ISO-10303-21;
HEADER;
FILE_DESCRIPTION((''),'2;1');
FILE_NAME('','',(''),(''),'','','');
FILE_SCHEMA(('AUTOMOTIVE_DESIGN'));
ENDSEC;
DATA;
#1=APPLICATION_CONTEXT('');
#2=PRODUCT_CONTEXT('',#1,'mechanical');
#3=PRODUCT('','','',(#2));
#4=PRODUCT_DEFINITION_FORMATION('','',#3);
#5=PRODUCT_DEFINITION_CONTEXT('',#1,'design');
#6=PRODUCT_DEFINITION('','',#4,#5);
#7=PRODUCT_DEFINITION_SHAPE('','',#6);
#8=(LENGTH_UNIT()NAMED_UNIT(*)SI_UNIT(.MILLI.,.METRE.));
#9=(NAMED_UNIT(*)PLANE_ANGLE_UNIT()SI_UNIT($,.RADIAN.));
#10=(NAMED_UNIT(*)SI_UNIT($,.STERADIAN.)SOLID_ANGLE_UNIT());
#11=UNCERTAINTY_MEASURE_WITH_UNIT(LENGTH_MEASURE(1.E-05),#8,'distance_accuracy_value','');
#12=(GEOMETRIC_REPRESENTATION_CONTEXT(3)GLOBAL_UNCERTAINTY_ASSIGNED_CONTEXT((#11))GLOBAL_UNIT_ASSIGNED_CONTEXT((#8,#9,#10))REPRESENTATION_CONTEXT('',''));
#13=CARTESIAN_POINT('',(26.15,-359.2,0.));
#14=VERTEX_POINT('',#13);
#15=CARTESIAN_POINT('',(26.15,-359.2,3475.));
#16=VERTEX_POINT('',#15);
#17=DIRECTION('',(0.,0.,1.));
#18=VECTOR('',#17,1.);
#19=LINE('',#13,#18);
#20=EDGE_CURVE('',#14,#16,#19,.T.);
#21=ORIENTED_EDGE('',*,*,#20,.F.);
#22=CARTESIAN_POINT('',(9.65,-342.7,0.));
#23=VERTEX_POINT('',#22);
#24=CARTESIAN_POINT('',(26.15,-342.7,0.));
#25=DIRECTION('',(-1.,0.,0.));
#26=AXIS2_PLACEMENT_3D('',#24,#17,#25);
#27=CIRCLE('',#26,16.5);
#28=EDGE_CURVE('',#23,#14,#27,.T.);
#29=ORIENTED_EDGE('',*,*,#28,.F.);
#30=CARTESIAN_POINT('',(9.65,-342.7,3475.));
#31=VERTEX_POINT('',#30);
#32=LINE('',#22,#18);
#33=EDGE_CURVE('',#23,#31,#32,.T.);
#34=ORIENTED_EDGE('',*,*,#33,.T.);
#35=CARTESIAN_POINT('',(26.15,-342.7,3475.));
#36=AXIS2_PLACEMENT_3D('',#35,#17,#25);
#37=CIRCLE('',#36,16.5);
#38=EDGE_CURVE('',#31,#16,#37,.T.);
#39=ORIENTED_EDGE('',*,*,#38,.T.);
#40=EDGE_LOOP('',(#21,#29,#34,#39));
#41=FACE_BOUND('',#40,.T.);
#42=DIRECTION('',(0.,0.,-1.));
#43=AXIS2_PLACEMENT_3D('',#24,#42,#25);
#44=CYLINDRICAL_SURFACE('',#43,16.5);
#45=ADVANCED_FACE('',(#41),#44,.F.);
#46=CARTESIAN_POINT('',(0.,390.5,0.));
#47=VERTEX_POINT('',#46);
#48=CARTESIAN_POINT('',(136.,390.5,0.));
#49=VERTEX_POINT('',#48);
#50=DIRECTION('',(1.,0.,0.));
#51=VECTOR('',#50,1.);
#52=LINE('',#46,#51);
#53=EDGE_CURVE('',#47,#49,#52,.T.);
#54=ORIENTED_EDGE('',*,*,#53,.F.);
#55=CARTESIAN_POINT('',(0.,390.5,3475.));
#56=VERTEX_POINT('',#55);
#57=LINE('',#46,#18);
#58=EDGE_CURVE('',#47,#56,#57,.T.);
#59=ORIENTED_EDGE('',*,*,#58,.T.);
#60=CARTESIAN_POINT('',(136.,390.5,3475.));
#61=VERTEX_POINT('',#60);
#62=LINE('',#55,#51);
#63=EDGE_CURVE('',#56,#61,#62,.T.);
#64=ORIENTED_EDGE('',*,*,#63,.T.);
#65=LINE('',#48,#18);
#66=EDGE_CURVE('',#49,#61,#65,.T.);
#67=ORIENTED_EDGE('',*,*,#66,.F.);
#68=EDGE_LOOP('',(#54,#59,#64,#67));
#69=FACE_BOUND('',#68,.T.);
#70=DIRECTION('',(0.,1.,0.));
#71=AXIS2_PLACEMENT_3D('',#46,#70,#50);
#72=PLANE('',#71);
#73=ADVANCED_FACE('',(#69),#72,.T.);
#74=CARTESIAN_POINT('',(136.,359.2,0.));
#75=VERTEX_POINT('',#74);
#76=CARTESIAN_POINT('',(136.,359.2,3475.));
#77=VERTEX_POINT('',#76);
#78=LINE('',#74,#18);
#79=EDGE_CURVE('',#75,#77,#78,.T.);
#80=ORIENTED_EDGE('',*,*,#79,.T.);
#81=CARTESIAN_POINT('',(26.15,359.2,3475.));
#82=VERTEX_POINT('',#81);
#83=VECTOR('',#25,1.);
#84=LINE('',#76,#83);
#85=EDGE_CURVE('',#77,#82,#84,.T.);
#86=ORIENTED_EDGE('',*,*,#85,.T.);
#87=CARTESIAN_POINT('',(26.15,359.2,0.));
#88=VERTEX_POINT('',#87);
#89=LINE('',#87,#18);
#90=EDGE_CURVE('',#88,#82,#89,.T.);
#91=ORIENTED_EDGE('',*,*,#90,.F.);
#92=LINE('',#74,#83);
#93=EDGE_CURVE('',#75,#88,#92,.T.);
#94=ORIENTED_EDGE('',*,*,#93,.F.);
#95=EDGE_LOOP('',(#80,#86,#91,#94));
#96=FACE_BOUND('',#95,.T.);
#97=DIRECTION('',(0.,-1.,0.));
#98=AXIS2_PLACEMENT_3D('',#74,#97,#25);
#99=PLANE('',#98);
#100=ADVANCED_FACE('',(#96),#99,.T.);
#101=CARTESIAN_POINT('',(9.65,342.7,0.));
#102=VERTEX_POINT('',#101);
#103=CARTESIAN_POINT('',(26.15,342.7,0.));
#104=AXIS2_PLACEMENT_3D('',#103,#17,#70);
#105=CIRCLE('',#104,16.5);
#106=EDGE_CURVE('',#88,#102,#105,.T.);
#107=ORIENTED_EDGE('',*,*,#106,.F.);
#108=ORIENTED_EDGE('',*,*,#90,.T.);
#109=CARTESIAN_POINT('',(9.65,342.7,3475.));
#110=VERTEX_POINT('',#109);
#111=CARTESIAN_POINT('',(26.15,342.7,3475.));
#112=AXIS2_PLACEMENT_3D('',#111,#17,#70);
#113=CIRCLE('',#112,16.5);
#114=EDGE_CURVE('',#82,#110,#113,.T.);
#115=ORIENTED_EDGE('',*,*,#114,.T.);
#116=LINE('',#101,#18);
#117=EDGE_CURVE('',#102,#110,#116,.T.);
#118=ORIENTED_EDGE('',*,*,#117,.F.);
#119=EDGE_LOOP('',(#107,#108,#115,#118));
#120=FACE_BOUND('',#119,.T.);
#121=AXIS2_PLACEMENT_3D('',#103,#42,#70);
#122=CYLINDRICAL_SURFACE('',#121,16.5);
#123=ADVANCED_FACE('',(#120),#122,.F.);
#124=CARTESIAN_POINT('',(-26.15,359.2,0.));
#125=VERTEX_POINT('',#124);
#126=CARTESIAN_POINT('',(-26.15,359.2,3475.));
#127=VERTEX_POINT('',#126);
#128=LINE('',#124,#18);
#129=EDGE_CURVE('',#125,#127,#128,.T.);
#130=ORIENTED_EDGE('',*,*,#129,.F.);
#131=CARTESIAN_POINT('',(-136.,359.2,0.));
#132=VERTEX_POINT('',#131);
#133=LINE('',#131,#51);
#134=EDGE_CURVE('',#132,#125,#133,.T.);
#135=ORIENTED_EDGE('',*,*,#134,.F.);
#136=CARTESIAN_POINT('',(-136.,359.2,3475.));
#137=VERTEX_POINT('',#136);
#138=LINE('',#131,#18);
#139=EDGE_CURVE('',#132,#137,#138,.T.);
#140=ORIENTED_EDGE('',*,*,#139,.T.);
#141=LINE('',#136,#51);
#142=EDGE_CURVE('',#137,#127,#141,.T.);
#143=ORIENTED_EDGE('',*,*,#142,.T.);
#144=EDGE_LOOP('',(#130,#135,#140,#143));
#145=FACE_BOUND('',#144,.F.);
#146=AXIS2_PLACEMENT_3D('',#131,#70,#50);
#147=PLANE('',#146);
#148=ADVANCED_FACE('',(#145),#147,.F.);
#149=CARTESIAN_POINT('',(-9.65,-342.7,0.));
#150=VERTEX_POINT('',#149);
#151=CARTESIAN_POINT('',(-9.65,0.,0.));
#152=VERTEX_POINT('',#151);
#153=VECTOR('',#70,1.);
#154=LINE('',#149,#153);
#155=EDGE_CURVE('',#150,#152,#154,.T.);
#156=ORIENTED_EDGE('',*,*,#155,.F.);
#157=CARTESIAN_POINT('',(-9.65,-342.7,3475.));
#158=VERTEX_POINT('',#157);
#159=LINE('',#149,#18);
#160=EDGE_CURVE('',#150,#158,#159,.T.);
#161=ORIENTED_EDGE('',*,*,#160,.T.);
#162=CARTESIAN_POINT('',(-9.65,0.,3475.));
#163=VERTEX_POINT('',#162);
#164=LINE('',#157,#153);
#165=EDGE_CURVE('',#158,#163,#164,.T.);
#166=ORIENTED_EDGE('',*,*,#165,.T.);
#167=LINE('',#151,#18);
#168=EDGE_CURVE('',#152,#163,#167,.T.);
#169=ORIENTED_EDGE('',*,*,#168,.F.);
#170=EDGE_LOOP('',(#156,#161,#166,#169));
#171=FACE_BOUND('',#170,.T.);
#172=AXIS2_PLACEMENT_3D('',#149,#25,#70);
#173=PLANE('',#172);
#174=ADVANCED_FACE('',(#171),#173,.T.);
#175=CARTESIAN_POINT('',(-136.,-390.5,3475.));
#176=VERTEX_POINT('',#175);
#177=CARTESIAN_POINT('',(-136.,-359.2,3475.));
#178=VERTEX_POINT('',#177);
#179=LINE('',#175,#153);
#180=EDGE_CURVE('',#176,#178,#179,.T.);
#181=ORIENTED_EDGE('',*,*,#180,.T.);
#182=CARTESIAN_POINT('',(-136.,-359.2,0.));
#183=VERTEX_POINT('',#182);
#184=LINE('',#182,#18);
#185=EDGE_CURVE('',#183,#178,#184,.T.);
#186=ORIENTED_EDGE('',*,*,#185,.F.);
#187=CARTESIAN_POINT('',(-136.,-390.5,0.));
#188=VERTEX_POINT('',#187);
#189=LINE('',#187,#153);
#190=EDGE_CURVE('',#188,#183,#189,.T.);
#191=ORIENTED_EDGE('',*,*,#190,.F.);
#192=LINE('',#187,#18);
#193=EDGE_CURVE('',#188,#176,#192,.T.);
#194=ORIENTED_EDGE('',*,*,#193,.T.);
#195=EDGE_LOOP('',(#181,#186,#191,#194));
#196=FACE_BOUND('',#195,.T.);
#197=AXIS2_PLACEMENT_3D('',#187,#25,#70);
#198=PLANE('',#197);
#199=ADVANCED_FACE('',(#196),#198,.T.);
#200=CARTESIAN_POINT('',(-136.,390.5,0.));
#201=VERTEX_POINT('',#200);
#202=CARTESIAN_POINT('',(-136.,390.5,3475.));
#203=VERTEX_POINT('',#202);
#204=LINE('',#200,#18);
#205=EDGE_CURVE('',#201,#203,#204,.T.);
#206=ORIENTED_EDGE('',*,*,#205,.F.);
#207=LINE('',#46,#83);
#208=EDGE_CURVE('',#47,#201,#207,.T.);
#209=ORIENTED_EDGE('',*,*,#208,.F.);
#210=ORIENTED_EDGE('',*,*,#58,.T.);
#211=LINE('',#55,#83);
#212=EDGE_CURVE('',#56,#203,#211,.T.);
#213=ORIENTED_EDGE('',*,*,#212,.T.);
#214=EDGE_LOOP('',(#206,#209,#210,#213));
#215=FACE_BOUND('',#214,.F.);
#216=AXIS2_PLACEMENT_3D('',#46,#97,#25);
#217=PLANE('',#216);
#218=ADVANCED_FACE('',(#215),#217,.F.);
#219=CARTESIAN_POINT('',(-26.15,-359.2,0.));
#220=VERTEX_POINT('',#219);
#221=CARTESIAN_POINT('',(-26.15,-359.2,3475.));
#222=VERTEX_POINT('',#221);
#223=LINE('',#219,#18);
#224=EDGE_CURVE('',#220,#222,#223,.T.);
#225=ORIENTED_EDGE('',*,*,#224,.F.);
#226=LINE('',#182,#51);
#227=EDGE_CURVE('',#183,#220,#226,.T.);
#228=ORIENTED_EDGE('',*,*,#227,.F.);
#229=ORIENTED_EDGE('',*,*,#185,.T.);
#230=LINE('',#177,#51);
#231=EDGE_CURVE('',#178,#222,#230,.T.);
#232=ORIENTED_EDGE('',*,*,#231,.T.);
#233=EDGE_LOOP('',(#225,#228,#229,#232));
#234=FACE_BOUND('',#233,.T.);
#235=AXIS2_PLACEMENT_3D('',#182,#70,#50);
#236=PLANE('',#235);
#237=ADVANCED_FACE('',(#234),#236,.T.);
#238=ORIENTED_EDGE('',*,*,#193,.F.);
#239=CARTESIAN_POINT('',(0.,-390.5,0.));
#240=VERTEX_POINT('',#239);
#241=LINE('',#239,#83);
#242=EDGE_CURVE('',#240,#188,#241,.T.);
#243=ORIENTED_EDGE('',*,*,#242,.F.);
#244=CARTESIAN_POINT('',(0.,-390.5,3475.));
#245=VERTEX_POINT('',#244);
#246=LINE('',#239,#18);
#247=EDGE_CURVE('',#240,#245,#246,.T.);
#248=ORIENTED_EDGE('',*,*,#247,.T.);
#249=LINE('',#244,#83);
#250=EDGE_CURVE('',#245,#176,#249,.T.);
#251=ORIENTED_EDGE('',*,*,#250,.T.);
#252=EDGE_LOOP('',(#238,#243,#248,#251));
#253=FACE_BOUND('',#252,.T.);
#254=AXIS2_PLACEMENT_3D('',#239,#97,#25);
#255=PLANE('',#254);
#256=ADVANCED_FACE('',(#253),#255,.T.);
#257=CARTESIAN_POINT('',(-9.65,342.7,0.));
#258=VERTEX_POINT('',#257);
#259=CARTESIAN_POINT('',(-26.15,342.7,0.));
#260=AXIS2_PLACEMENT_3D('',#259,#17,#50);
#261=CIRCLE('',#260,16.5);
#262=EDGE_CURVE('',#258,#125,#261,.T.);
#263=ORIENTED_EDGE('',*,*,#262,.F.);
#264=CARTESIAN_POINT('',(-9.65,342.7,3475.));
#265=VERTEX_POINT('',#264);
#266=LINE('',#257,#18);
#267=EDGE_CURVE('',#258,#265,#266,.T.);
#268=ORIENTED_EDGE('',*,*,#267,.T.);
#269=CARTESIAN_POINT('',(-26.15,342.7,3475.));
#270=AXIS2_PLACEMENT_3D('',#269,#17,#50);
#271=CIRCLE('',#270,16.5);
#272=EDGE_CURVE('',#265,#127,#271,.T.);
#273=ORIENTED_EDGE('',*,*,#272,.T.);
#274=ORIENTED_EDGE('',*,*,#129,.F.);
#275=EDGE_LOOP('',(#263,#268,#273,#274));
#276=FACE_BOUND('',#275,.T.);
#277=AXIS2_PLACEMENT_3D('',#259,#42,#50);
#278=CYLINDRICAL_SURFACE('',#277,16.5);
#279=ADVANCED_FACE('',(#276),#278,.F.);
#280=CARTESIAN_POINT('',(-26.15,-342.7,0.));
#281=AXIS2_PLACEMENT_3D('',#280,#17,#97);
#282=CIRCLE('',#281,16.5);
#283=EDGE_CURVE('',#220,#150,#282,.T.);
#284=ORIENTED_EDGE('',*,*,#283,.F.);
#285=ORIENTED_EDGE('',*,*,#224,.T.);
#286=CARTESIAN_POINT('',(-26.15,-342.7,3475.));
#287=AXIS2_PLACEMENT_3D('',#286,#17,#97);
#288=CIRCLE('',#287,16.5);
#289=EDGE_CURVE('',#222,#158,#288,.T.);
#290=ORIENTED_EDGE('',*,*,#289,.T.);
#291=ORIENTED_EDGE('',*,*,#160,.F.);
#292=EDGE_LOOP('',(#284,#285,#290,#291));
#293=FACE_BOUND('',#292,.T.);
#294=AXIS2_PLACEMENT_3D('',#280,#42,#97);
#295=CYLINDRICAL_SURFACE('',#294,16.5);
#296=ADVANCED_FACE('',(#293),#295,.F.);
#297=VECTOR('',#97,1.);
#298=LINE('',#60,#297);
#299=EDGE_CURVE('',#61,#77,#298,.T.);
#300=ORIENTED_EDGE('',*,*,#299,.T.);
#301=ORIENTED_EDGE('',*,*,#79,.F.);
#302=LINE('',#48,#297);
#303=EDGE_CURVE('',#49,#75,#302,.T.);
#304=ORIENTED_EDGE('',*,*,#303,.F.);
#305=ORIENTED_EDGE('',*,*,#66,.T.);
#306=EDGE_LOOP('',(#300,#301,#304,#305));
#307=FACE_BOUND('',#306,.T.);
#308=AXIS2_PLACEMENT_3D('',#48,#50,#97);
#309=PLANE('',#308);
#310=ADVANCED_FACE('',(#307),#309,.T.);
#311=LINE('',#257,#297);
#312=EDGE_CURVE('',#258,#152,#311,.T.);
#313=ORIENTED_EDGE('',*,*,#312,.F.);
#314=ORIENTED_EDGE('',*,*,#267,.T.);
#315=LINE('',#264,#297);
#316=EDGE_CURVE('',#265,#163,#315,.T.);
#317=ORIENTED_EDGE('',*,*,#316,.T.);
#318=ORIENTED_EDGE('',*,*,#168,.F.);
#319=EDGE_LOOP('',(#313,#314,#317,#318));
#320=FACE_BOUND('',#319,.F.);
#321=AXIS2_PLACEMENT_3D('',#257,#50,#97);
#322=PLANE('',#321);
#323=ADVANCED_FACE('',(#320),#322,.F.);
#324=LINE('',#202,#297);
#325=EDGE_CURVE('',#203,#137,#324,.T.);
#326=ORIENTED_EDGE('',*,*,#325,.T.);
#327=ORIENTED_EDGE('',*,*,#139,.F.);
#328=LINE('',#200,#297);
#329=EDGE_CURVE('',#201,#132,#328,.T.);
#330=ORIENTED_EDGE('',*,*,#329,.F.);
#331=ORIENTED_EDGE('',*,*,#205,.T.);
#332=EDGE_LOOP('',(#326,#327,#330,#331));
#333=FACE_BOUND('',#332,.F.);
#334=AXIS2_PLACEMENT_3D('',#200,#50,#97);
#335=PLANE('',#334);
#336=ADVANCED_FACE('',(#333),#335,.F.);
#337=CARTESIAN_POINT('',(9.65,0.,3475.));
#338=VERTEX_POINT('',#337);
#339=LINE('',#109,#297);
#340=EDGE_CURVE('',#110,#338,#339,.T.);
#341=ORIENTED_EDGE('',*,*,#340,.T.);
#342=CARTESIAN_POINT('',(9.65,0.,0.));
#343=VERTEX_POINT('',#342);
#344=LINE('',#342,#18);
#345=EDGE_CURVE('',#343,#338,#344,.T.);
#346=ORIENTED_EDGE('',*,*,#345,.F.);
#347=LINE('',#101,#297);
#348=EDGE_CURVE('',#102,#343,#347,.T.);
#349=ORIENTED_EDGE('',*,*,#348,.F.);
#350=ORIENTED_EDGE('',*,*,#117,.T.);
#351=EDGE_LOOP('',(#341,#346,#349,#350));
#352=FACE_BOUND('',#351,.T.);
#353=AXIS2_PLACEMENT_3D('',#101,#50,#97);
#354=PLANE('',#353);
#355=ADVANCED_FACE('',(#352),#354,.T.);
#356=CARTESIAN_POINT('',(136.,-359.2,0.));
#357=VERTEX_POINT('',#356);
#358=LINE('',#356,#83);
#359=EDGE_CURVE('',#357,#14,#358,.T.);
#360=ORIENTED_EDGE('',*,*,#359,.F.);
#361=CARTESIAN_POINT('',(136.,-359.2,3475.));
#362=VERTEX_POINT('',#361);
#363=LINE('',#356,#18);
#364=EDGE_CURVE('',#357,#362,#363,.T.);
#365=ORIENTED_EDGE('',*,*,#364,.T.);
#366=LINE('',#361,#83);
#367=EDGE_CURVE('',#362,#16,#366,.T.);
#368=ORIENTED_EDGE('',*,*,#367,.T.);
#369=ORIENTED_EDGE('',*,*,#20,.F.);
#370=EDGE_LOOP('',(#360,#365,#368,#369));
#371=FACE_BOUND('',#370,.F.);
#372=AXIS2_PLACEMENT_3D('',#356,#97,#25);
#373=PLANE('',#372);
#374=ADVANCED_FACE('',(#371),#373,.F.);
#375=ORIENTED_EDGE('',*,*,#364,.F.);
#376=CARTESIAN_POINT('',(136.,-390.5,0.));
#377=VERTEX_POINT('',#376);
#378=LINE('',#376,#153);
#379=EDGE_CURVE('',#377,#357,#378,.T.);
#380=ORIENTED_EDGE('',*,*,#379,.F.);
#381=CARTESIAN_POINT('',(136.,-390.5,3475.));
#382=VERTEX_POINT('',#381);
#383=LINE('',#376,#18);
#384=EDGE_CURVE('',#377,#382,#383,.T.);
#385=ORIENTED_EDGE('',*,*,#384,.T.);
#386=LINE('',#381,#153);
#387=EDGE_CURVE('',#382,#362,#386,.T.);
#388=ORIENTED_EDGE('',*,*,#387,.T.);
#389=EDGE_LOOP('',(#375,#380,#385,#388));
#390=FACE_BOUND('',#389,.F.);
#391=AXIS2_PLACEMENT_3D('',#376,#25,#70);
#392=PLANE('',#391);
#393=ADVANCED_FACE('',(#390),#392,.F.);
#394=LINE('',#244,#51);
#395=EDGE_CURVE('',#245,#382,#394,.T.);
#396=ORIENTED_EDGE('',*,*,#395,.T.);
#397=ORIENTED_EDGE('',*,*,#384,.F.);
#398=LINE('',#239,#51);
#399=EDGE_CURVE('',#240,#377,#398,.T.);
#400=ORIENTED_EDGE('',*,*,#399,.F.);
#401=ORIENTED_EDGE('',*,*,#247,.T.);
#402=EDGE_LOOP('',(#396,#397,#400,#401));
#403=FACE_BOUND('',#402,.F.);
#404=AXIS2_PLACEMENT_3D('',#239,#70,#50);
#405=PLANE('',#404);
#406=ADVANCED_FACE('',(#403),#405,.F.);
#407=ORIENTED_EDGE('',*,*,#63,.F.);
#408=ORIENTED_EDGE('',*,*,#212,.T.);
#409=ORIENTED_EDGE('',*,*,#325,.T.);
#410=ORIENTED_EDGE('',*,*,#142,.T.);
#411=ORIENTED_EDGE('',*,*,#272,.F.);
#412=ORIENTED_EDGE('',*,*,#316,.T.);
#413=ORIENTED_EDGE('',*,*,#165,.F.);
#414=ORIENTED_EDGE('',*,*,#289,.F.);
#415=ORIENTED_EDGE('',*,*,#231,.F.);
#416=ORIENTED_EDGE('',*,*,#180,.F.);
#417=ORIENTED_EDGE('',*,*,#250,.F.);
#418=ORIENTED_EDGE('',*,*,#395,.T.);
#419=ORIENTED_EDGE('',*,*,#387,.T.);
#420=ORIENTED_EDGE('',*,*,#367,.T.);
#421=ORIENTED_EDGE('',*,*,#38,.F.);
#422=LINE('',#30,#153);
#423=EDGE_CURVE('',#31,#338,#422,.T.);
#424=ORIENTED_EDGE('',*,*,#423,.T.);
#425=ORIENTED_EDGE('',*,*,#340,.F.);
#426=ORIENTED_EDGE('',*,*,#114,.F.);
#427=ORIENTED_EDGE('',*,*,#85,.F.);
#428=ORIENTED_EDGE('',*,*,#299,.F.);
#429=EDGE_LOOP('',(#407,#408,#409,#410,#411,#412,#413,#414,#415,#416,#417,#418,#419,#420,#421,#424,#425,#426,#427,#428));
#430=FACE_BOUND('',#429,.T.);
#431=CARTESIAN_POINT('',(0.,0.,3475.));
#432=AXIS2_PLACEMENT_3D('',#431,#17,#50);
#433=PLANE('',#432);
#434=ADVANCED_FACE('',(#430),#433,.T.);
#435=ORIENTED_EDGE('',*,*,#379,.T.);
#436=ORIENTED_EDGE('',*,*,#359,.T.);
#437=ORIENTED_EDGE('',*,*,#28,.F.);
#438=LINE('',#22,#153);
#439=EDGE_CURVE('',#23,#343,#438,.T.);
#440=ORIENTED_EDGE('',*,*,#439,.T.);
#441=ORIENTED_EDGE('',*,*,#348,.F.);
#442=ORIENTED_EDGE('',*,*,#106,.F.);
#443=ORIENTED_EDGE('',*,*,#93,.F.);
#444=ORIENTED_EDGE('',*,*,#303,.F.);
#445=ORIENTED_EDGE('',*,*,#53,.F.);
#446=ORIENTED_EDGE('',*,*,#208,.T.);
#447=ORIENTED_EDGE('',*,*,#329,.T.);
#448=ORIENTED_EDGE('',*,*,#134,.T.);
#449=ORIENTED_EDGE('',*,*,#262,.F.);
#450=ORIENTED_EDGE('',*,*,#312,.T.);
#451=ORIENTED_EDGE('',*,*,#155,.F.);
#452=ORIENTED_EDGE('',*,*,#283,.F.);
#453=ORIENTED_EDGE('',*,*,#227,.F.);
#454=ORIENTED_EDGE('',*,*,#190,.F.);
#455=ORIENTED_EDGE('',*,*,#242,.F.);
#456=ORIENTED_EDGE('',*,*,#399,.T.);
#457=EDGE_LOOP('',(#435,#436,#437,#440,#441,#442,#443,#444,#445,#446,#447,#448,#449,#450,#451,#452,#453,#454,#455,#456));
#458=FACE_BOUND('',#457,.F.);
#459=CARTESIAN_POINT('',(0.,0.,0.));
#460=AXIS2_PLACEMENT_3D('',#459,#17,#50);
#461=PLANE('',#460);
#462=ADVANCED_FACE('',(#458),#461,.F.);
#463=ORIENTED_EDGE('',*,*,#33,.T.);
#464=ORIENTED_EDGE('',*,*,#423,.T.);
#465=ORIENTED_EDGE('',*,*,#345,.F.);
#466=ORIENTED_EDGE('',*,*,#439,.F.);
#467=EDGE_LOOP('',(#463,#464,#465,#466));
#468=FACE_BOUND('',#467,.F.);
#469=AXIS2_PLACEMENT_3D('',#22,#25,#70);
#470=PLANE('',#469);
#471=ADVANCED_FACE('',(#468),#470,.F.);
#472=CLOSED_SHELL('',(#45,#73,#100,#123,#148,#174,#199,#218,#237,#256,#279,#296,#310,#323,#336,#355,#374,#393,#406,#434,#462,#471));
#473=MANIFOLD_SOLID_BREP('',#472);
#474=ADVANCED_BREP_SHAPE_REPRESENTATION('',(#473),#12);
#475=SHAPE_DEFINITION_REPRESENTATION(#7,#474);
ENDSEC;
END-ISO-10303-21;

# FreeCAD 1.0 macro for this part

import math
import FreeCAD as App
import Part
import Sketcher
Q = App.Units.Quantity

doc = App.newDocument("Part")
body = doc.addObject("PartDesign::Body", "Body")

sketch1 = body.newObject("Sketcher::SketchObject", "Sketch")
sketch1.AttachmentSupport = (doc.getObject("XY_Plane"), [""])
sketch1.MapMode = "FlatFace"
sketch1.addGeometry([
    Part.LineSegment(App.Vector(-136, -359, 0), App.Vector(-136, -390, 0)),
    Part.LineSegment(App.Vector(-136, -390, 0), App.Vector(136, -390, 0)),
    Part.LineSegment(App.Vector(136, -390, 0), App.Vector(136, -359, 0)),
    Part.LineSegment(App.Vector(136, -359, 0), App.Vector(26, -359, 0)),
    Part.ArcOfCircle(Part.Circle(App.Vector(26, -343, 0), App.Vector(0, 0, 1), 16), math.radians(180), math.radians(270)),
    Part.LineSegment(App.Vector(10, -343, 0), App.Vector(10, 343, 0)),
    Part.ArcOfCircle(Part.Circle(App.Vector(26, 343, 0), App.Vector(0, 0, 1), 16), math.radians(90), math.radians(180)),
    Part.LineSegment(App.Vector(26, 359, 0), App.Vector(136, 359, 0)),
    Part.LineSegment(App.Vector(136, 359, 0), App.Vector(136, 390, 0)),
    Part.LineSegment(App.Vector(136, 390, 0), App.Vector(-136, 390, 0)),
    Part.LineSegment(App.Vector(-136, 390, 0), App.Vector(-136, 359, 0)),
    Part.LineSegment(App.Vector(-136, 359, 0), App.Vector(-26, 359, 0)),
    Part.ArcOfCircle(Part.Circle(App.Vector(-26, 343, 0), App.Vector(0, 0, 1), 16), math.radians(0), math.radians(90)),
    Part.LineSegment(App.Vector(-10, 343, 0), App.Vector(-10, -343, 0)),
    Part.ArcOfCircle(Part.Circle(App.Vector(-26, -343, 0), App.Vector(0, 0, 1), 16), math.radians(-90), math.radians(0)),
    Part.LineSegment(App.Vector(-26, -359, 0), App.Vector(-136, -359, 0)),
], False)
sketch1.addConstraint([
    Sketcher.Constraint("Coincident", 0, 2, 1, 1),
    Sketcher.Constraint("Coincident", 1, 2, 2, 1),
    Sketcher.Constraint("Coincident", 2, 2, 3, 1),
    Sketcher.Constraint("Tangent", 3, 2, 4, 2),
    Sketcher.Constraint("Tangent", 4, 1, 5, 1),
    Sketcher.Constraint("Tangent", 5, 2, 6, 2),
    Sketcher.Constraint("Tangent", 6, 1, 7, 1),
    Sketcher.Constraint("Coincident", 7, 2, 8, 1),
    Sketcher.Constraint("Coincident", 8, 2, 9, 1),
    Sketcher.Constraint("Coincident", 9, 2, 10, 1),
    Sketcher.Constraint("Coincident", 10, 2, 11, 1),
    Sketcher.Constraint("Tangent", 11, 2, 12, 2),
    Sketcher.Constraint("Tangent", 12, 1, 13, 1),
    Sketcher.Constraint("Tangent", 13, 2, 14, 2),
    Sketcher.Constraint("Tangent", 14, 1, 15, 1),
    Sketcher.Constraint("Coincident", 15, 2, 0, 1),
    Sketcher.Constraint("Vertical", 0),
    Sketcher.Constraint("Horizontal", 1),
    Sketcher.Constraint("Vertical", 2),
    Sketcher.Constraint("Horizontal", 3),
    Sketcher.Constraint("Vertical", 5),
    Sketcher.Constraint("Horizontal", 7),
    Sketcher.Constraint("Vertical", 8),
    Sketcher.Constraint("Horizontal", 9),
    Sketcher.Constraint("Vertical", 10),
    Sketcher.Constraint("Horizontal", 11),
    Sketcher.Constraint("Vertical", 13),
    Sketcher.Constraint("Horizontal", 15),
    Sketcher.Constraint("Equal", 4, 6),
    Sketcher.Constraint("Equal", 6, 12),
    Sketcher.Constraint("Equal", 12, 14),
    Sketcher.Constraint("Symmetric", 4, 3, 12, 3, -1, 1),
    Sketcher.Constraint("Symmetric", 0, 2, 8, 2, -1, 1),
    Sketcher.Constraint("Symmetric", 7, 2, 10, 2, -2),
    Sketcher.Constraint("Symmetric", 2, 2, 15, 2, -2),
    Sketcher.Constraint("Radius", 4, Q("16.5 mm")),
    Sketcher.Constraint("DistanceY", 0, 2, 0, 1, Q("31.3 mm")),
    Sketcher.Constraint("DistanceX", 0, 2, -1, 1, Q("136 mm")),
    Sketcher.Constraint("DistanceY", 0, 2, -1, 1, Q("390.5 mm")),
    Sketcher.Constraint("DistanceX", -1, 1, 4, 1, Q("9.65 mm")),
])
pad1 = body.newObject("PartDesign::Pad", "Pad")
pad1.Profile = sketch1
pad1.Length = 3475

doc.recompute()
